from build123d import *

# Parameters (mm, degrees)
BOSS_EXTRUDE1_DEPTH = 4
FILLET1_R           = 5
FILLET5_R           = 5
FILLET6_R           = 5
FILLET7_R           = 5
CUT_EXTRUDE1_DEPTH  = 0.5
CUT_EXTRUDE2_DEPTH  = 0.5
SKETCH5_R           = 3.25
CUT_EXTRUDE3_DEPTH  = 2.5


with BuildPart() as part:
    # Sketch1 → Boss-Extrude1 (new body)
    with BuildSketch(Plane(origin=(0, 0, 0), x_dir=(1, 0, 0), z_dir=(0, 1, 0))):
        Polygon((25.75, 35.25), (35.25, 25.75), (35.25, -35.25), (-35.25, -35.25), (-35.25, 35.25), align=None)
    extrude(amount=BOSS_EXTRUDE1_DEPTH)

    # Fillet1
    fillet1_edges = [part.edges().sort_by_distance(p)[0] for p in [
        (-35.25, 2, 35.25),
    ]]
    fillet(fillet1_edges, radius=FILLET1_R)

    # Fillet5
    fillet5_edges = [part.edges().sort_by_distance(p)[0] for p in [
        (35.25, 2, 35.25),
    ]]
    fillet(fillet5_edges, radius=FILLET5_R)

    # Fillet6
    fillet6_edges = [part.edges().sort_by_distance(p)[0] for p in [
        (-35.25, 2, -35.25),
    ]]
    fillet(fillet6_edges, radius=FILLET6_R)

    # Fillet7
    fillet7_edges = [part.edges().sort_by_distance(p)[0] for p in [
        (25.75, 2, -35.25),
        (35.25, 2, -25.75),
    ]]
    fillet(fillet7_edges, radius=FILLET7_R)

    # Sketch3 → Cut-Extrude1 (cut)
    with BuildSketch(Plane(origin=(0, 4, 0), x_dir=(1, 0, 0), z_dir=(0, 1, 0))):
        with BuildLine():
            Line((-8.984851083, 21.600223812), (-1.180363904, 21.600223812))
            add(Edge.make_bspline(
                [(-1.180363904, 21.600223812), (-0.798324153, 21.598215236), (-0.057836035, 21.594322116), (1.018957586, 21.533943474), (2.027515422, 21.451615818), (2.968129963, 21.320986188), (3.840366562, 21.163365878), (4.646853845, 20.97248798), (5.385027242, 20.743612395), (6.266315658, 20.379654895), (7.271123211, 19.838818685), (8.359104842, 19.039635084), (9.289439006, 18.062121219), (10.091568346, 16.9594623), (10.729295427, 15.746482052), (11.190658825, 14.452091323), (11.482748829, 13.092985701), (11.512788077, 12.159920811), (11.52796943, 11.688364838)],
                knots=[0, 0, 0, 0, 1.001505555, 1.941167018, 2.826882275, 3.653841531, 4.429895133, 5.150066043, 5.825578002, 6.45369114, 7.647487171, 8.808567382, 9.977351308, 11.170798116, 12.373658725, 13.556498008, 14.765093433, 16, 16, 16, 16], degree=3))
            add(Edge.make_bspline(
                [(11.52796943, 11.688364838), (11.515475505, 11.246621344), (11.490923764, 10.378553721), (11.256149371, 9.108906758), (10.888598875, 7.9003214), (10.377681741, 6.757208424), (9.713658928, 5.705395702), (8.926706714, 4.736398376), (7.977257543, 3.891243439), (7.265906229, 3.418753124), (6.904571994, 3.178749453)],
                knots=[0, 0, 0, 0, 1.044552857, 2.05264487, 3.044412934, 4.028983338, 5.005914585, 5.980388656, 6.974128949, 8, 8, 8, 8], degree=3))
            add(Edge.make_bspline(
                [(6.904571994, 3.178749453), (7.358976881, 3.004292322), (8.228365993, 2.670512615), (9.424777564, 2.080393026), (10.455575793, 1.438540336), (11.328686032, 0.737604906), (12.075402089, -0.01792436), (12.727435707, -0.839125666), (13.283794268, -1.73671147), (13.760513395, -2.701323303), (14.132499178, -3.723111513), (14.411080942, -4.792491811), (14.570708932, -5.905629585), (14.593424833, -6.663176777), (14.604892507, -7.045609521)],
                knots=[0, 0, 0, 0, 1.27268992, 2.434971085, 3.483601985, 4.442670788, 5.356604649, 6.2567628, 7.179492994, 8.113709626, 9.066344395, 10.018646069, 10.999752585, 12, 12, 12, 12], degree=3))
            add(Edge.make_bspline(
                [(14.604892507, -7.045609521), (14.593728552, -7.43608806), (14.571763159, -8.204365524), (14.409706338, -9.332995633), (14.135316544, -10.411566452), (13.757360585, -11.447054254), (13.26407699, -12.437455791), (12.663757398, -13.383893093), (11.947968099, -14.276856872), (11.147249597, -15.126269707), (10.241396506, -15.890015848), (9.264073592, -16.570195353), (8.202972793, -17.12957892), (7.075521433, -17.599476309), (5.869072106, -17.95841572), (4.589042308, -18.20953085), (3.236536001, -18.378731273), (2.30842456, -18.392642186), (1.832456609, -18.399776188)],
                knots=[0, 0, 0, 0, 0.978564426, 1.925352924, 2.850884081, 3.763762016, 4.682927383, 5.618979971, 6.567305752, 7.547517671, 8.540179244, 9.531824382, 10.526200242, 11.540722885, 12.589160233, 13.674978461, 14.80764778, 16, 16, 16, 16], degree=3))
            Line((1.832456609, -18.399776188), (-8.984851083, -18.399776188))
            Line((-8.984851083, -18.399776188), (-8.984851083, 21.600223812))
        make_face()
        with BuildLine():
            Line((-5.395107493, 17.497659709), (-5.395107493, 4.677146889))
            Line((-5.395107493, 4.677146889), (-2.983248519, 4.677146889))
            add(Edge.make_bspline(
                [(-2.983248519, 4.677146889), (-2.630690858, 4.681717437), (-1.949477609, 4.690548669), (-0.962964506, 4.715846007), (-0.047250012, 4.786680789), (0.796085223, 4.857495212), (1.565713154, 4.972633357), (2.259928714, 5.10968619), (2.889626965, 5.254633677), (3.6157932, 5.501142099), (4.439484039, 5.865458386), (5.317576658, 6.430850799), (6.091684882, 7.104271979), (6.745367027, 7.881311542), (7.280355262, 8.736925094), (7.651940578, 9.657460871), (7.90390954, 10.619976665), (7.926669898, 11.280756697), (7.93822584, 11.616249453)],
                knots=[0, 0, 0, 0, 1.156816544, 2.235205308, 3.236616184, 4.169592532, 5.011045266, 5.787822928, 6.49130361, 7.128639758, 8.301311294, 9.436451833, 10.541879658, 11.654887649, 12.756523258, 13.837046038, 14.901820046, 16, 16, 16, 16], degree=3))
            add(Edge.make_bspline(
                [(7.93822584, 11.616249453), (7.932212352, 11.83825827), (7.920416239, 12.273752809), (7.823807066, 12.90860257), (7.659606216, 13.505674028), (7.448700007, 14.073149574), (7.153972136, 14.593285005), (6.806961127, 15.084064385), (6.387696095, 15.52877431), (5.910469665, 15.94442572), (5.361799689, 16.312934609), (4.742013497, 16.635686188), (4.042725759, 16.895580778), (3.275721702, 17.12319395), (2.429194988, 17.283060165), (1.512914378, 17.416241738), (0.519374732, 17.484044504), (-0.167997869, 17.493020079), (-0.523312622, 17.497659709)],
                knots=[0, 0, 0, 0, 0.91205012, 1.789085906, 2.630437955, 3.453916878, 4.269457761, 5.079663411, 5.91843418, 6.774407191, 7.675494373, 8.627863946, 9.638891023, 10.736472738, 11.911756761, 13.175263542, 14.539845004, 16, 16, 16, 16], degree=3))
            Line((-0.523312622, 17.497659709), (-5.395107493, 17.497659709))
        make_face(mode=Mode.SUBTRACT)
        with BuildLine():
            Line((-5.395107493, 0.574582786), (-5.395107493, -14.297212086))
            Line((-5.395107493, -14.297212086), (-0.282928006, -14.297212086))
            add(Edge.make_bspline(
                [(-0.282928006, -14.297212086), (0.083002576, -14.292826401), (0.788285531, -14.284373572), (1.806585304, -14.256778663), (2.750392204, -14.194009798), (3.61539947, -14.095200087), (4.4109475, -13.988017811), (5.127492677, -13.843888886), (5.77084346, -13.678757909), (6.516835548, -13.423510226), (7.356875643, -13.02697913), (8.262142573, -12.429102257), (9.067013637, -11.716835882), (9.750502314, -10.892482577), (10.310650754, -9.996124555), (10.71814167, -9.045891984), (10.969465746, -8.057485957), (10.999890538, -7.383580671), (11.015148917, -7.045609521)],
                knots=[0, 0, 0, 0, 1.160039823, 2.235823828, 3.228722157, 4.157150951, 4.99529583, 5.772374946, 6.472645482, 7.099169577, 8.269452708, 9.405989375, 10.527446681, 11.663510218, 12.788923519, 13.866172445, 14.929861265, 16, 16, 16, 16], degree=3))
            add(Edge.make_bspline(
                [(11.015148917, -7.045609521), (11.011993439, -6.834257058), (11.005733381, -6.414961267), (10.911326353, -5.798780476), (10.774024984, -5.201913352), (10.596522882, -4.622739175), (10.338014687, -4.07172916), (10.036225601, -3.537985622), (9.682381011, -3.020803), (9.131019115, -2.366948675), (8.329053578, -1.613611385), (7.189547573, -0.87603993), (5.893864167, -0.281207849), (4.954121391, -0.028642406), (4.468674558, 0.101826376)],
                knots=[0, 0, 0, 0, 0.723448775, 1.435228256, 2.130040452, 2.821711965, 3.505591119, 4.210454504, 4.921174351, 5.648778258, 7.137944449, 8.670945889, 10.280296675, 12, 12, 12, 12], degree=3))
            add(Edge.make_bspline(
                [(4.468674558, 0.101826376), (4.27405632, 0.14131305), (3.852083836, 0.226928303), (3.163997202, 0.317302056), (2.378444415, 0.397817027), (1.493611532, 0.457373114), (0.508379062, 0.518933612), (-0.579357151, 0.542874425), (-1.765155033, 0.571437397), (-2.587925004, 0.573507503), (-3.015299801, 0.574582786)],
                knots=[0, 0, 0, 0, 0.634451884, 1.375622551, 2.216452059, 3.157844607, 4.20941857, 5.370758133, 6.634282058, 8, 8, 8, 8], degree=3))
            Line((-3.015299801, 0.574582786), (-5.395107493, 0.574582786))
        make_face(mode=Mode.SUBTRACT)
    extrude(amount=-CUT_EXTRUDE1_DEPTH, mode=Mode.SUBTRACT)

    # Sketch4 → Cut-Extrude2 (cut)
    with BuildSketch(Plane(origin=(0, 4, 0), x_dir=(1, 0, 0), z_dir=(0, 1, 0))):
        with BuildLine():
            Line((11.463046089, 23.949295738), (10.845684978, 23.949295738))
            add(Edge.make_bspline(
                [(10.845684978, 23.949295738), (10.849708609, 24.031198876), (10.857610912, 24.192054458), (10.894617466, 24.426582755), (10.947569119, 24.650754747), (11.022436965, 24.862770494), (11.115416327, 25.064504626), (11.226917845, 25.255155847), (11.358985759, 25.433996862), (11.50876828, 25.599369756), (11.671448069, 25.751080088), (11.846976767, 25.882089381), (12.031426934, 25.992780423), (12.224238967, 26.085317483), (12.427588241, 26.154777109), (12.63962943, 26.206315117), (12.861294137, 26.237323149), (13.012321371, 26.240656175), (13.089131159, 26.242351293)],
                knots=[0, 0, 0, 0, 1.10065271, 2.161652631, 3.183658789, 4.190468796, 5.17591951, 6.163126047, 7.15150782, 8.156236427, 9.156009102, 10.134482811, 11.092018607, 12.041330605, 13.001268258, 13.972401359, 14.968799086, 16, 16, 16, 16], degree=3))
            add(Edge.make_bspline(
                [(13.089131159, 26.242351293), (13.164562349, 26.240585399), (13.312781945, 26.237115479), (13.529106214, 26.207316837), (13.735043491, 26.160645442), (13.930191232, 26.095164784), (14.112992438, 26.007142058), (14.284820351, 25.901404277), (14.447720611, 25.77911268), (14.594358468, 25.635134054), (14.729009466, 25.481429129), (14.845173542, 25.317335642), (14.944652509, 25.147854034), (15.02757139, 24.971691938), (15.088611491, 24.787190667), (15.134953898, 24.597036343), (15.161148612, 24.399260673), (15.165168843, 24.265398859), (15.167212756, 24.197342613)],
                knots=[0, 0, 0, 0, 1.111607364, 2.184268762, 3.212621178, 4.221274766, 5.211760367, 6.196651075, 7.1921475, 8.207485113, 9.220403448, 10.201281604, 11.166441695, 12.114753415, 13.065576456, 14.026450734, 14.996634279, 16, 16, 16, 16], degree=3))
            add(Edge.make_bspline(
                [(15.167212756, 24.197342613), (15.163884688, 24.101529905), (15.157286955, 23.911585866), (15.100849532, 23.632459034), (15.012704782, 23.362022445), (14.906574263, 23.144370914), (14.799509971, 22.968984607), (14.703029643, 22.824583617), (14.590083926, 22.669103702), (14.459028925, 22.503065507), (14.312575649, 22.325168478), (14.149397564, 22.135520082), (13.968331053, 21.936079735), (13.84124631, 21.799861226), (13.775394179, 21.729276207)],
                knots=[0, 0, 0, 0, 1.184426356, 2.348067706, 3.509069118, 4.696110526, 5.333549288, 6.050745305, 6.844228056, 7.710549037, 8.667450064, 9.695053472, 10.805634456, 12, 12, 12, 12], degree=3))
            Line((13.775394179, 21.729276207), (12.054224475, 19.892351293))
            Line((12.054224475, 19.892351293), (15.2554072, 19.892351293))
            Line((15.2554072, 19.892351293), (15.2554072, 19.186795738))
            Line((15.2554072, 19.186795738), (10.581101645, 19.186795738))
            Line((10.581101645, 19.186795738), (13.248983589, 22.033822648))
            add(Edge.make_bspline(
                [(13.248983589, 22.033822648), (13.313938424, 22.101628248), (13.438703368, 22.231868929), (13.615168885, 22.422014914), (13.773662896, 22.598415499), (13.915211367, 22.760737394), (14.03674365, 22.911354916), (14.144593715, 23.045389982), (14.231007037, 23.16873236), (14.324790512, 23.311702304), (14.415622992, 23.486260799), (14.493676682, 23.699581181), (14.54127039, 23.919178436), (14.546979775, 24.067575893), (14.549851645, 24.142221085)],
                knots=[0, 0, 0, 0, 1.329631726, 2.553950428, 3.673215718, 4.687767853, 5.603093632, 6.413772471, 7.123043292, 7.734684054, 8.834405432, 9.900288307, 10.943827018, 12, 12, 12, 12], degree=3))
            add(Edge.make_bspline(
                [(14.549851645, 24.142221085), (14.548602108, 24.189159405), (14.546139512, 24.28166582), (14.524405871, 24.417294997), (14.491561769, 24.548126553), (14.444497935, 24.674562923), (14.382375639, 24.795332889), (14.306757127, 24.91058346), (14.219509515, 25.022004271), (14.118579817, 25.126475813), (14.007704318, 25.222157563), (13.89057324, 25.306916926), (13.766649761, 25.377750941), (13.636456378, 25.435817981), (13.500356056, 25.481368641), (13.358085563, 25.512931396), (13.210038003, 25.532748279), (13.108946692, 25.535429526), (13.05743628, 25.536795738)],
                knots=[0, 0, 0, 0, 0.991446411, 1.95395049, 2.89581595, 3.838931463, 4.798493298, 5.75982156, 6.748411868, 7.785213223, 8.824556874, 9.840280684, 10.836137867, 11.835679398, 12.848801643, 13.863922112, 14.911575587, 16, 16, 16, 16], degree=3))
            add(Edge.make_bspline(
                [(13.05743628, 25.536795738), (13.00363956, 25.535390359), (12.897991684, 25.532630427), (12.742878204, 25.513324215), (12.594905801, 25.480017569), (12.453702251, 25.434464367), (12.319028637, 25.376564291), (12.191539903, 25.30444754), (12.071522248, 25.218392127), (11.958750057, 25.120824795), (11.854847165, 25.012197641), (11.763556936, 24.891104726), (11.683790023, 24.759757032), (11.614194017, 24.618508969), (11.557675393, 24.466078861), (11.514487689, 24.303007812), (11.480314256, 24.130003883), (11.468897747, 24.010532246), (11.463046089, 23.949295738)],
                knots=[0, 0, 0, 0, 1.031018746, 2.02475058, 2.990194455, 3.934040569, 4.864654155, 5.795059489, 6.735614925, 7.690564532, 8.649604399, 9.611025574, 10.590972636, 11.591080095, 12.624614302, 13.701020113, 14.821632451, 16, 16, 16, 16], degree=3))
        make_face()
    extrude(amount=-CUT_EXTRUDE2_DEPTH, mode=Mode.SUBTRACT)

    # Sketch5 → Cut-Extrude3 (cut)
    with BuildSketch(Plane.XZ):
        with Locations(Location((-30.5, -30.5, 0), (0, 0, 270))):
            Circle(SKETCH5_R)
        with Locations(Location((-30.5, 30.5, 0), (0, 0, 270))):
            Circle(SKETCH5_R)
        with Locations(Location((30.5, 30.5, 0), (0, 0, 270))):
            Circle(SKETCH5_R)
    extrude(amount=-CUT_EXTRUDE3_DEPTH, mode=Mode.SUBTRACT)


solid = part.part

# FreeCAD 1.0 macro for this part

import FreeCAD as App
import Part
import Sketcher
from FreeCAD import Vector


def edges_at(feature, points):
    """Names of the edges that pass closest to the given points."""
    edges = feature.Shape.Edges
    near = lambda p: min(range(len(edges)), key=lambda i: edges[i].distToShape(Part.Vertex(*p))[0])
    return sorted({f"Edge{near(p) + 1}" for p in points})


def add_polygon(sketch, points):
    """Adds a closed chain of lines whose ends are joined by coincident constraints."""
    first, n = sketch.GeometryCount, len(points)
    for a, b in zip(points, points[1:] + points[:1]):
        sketch.addGeometry(Part.LineSegment(App.Vector(*a, 0), App.Vector(*b, 0)), False)
    for i in range(n):
        sketch.addConstraint(Sketcher.Constraint("Coincident", first + i, 2, first + (i + 1) % n, 1))

doc = App.newDocument("Part")
body = doc.addObject("PartDesign::Body", "Body")

# Sketch on XZ plane
sketch1 = body.newObject("Sketcher::SketchObject", "Sketch")
sketch1.AttachmentSupport = (doc.getObject("XZ_Plane"), [""])
sketch1.MapMode = "FlatFace"
add_polygon(sketch1, [(35.25, -25.75), (25.75, -35.25), (-35.25, -35.25), (-35.25, 35.25), (35.25, 35.25)])  # lines 0-4
sketch1.addConstraint([
    Sketcher.Constraint("Horizontal", 1),
    Sketcher.Constraint("Vertical", 2),
    Sketcher.Constraint("Horizontal", 3),
    Sketcher.Constraint("Vertical", 4),
    Sketcher.Constraint("Symmetric", 1, 2, 3, 2, -1, 1),
    Sketcher.Constraint("Equal", 3, 2),
    Sketcher.Constraint("Equal", 1, 4),
    Sketcher.Constraint("DistanceX", 1, 2, 1, 1, 61.0),
    Sketcher.Constraint("DistanceX", 3, 1, 3, 2, 70.5),
])
pad1 = body.newObject("PartDesign::Pad", "Pad")
pad1.Profile = sketch1
pad1.Length = 4
pad1.Reversed = True
doc.recompute()

fillet = body.newObject("PartDesign::Fillet", "Fillet")
fillet.Base = (pad1, edges_at(pad1, [(-35.25, 2, 35.25)]))
fillet.Radius = 5
doc.recompute()

fillet2 = body.newObject("PartDesign::Fillet", "Fillet001")
fillet2.Base = (fillet, edges_at(fillet, [(35.25, 2, 35.25)]))
fillet2.Radius = 5
doc.recompute()

fillet3 = body.newObject("PartDesign::Fillet", "Fillet002")
fillet3.Base = (fillet2, edges_at(fillet2, [(-35.25, 2, -35.25)]))
fillet3.Radius = 5
doc.recompute()

fillet4 = body.newObject("PartDesign::Fillet", "Fillet003")
fillet4.Base = (fillet3, edges_at(fillet3, [(25.75, 2, -35.25), (35.25, 2, -25.75)]))
fillet4.Radius = 5

# Sketch on XZ plane
sketch2 = body.newObject("Sketcher::SketchObject", "Sketch001")
sketch2.AttachmentSupport = (doc.getObject("XZ_Plane"), [""])
sketch2.MapMode = "FlatFace"
sketch2.AttachmentOffset = App.Placement(Vector(0, 0, -4), App.Rotation())
sketch2.addGeometry([
    Part.LineSegment(Vector(-1.180364, -21.600224, 0), Vector(-8.984851, -21.600224, 0)),  # 0
    Part.LineSegment(Vector(-8.984851, -21.600224, 0), Vector(-8.984851, 18.399776, 0)),  # 1
    Part.LineSegment(Vector(-8.984851, 18.399776, 0), Vector(1.832457, 18.399776, 0)),  # 2
    Part.BSplineCurve([Vector(14.604893, 7.04561, 0), Vector(14.593729, 7.436088, 0), Vector(14.571763, 8.204366, 0), Vector(14.409706, 9.332996, 0), Vector(14.135317, 10.411566, 0), Vector(13.757361, 11.447054, 0), Vector(13.264077, 12.437456, 0), Vector(12.663757, 13.383893, 0), Vector(11.947968, 14.276857, 0), Vector(11.14725, 15.12627, 0), Vector(10.241397, 15.890016, 0), Vector(9.264074, 16.570195, 0), Vector(8.202973, 17.129579, 0), Vector(7.075521, 17.599476, 0), Vector(5.869072, 17.958416, 0), Vector(4.589042, 18.209531, 0), Vector(3.236536, 18.378731, 0), Vector(2.308425, 18.392642, 0), Vector(1.832457, 18.399776, 0)], [4, 1, 1, 1, 1, 1, 1, 1, 1, 1, 1, 1, 1, 1, 1, 1, 4], [0, 0.978564426, 1.925352924, 2.850884081, 3.763762016, 4.682927383, 5.618979971, 6.567305752, 7.547517671, 8.540179244, 9.531824382, 10.526200242, 11.540722885, 12.589160233, 13.674978461, 14.80764778, 16], False, 3, [1, 1, 1, 1, 1, 1, 1, 1, 1, 1, 1, 1, 1, 1, 1, 1, 1, 1, 1], False),  # 3
    Part.BSplineCurve([Vector(6.904572, -3.178749, 0), Vector(7.358977, -3.004292, 0), Vector(8.228366, -2.670513, 0), Vector(9.424778, -2.080393, 0), Vector(10.455576, -1.43854, 0), Vector(11.328686, -0.737605, 0), Vector(12.075402, 0.017924, 0), Vector(12.727436, 0.839126, 0), Vector(13.283794, 1.736711, 0), Vector(13.760513, 2.701323, 0), Vector(14.132499, 3.723112, 0), Vector(14.411081, 4.792492, 0), Vector(14.570709, 5.90563, 0), Vector(14.593425, 6.663177, 0), Vector(14.604893, 7.04561, 0)], [4, 1, 1, 1, 1, 1, 1, 1, 1, 1, 1, 1, 4], [0, 1.27268992, 2.434971085, 3.483601985, 4.442670788, 5.356604649, 6.2567628, 7.179492994, 8.113709626, 9.066344395, 10.018646069, 10.999752585, 12], False, 3, [1, 1, 1, 1, 1, 1, 1, 1, 1, 1, 1, 1, 1, 1, 1], False),  # 4
    Part.BSplineCurve([Vector(11.527969, -11.688365, 0), Vector(11.515476, -11.246621, 0), Vector(11.490924, -10.378554, 0), Vector(11.256149, -9.108907, 0), Vector(10.888599, -7.900321, 0), Vector(10.377682, -6.757208, 0), Vector(9.713659, -5.705396, 0), Vector(8.926707, -4.736398, 0), Vector(7.977258, -3.891243, 0), Vector(7.265906, -3.418753, 0), Vector(6.904572, -3.178749, 0)], [4, 1, 1, 1, 1, 1, 1, 1, 4], [0, 1.044552857, 2.05264487, 3.044412934, 4.028983338, 5.005914585, 5.980388656, 6.974128949, 8], False, 3, [1, 1, 1, 1, 1, 1, 1, 1, 1, 1, 1], False),  # 5
    Part.BSplineCurve([Vector(-1.180364, -21.600224, 0), Vector(-0.798324, -21.598215, 0), Vector(-0.057836, -21.594322, 0), Vector(1.018958, -21.533943, 0), Vector(2.027515, -21.451616, 0), Vector(2.96813, -21.320986, 0), Vector(3.840367, -21.163366, 0), Vector(4.646854, -20.972488, 0), Vector(5.385027, -20.743612, 0), Vector(6.266316, -20.379655, 0), Vector(7.271123, -19.838819, 0), Vector(8.359105, -19.039635, 0), Vector(9.289439, -18.062121, 0), Vector(10.091568, -16.959462, 0), Vector(10.729295, -15.746482, 0), Vector(11.190659, -14.452091, 0), Vector(11.482749, -13.092986, 0), Vector(11.512788, -12.159921, 0), Vector(11.527969, -11.688365, 0)], [4, 1, 1, 1, 1, 1, 1, 1, 1, 1, 1, 1, 1, 1, 1, 1, 4], [0, 1.001505555, 1.941167018, 2.826882275, 3.653841531, 4.429895133, 5.150066043, 5.825578002, 6.45369114, 7.647487171, 8.808567382, 9.977351308, 11.170798116, 12.373658725, 13.556498008, 14.765093433, 16], False, 3, [1, 1, 1, 1, 1, 1, 1, 1, 1, 1, 1, 1, 1, 1, 1, 1, 1, 1, 1], False),  # 6
    Part.LineSegment(Vector(-5.395107, -0.574583, 0), Vector(-3.0153, -0.574583, 0)),  # 7
    Part.BSplineCurve([Vector(4.468675, -0.101826, 0), Vector(4.274056, -0.141313, 0), Vector(3.852084, -0.226928, 0), Vector(3.163997, -0.317302, 0), Vector(2.378444, -0.397817, 0), Vector(1.493612, -0.457373, 0), Vector(0.508379, -0.518934, 0), Vector(-0.579357, -0.542874, 0), Vector(-1.765155, -0.571437, 0), Vector(-2.587925, -0.573508, 0), Vector(-3.0153, -0.574583, 0)], [4, 1, 1, 1, 1, 1, 1, 1, 4], [0, 0.634451884, 1.375622551, 2.216452059, 3.157844607, 4.20941857, 5.370758133, 6.634282058, 8], False, 3, [1, 1, 1, 1, 1, 1, 1, 1, 1, 1, 1], False),  # 8
    Part.BSplineCurve([Vector(11.015149, 7.04561, 0), Vector(11.011993, 6.834257, 0), Vector(11.005733, 6.414961, 0), Vector(10.911326, 5.79878, 0), Vector(10.774025, 5.201913, 0), Vector(10.596523, 4.622739, 0), Vector(10.338015, 4.071729, 0), Vector(10.036226, 3.537986, 0), Vector(9.682381, 3.020803, 0), Vector(9.131019, 2.366949, 0), Vector(8.329054, 1.613611, 0), Vector(7.189548, 0.87604, 0), Vector(5.893864, 0.281208, 0), Vector(4.954121, 0.028642, 0), Vector(4.468675, -0.101826, 0)], [4, 1, 1, 1, 1, 1, 1, 1, 1, 1, 1, 1, 4], [0, 0.723448775, 1.435228256, 2.130040452, 2.821711965, 3.505591119, 4.210454504, 4.921174351, 5.648778258, 7.137944449, 8.670945889, 10.280296675, 12], False, 3, [1, 1, 1, 1, 1, 1, 1, 1, 1, 1, 1, 1, 1, 1, 1], False),  # 9
    Part.BSplineCurve([Vector(-0.282928, 14.297212, 0), Vector(0.083003, 14.292826, 0), Vector(0.788286, 14.284374, 0), Vector(1.806585, 14.256779, 0), Vector(2.750392, 14.19401, 0), Vector(3.615399, 14.0952, 0), Vector(4.410947, 13.988018, 0), Vector(5.127493, 13.843889, 0), Vector(5.770843, 13.678758, 0), Vector(6.516836, 13.42351, 0), Vector(7.356876, 13.026979, 0), Vector(8.262143, 12.429102, 0), Vector(9.067014, 11.716836, 0), Vector(9.750502, 10.892483, 0), Vector(10.310651, 9.996125, 0), Vector(10.718142, 9.045892, 0), Vector(10.969466, 8.057486, 0), Vector(10.999891, 7.383581, 0), Vector(11.015149, 7.04561, 0)], [4, 1, 1, 1, 1, 1, 1, 1, 1, 1, 1, 1, 1, 1, 1, 1, 4], [0, 1.160039823, 2.235823828, 3.228722157, 4.157150951, 4.99529583, 5.772374946, 6.472645482, 7.099169577, 8.269452708, 9.405989375, 10.527446681, 11.663510218, 12.788923519, 13.866172445, 14.929861265, 16], False, 3, [1, 1, 1, 1, 1, 1, 1, 1, 1, 1, 1, 1, 1, 1, 1, 1, 1, 1, 1], False),  # 10
    Part.LineSegment(Vector(-0.282928, 14.297212, 0), Vector(-5.395107, 14.297212, 0)),  # 11
    Part.LineSegment(Vector(-5.395107, 14.297212, 0), Vector(-5.395107, -0.574583, 0)),  # 12
    Part.LineSegment(Vector(-5.395107, -17.49766, 0), Vector(-0.523313, -17.49766, 0)),  # 13
    Part.BSplineCurve([Vector(7.938226, -11.616249, 0), Vector(7.932212, -11.838258, 0), Vector(7.920416, -12.273753, 0), Vector(7.823807, -12.908603, 0), Vector(7.659606, -13.505674, 0), Vector(7.4487, -14.07315, 0), Vector(7.153972, -14.593285, 0), Vector(6.806961, -15.084064, 0), Vector(6.387696, -15.528774, 0), Vector(5.91047, -15.944426, 0), Vector(5.3618, -16.312935, 0), Vector(4.742013, -16.635686, 0), Vector(4.042726, -16.895581, 0), Vector(3.275722, -17.123194, 0), Vector(2.429195, -17.28306, 0), Vector(1.512914, -17.416242, 0), Vector(0.519375, -17.484045, 0), Vector(-0.167998, -17.49302, 0), Vector(-0.523313, -17.49766, 0)], [4, 1, 1, 1, 1, 1, 1, 1, 1, 1, 1, 1, 1, 1, 1, 1, 4], [0, 0.91205012, 1.789085906, 2.630437955, 3.453916878, 4.269457761, 5.079663411, 5.91843418, 6.774407191, 7.675494373, 8.627863946, 9.638891023, 10.736472738, 11.911756761, 13.175263542, 14.539845004, 16], False, 3, [1, 1, 1, 1, 1, 1, 1, 1, 1, 1, 1, 1, 1, 1, 1, 1, 1, 1, 1], False),  # 14
    Part.BSplineCurve([Vector(-2.983249, -4.677147, 0), Vector(-2.630691, -4.681717, 0), Vector(-1.949478, -4.690549, 0), Vector(-0.962965, -4.715846, 0), Vector(-0.04725, -4.786681, 0), Vector(0.796085, -4.857495, 0), Vector(1.565713, -4.972633, 0), Vector(2.259929, -5.109686, 0), Vector(2.889627, -5.254634, 0), Vector(3.615793, -5.501142, 0), Vector(4.439484, -5.865458, 0), Vector(5.317577, -6.430851, 0), Vector(6.091685, -7.104272, 0), Vector(6.745367, -7.881312, 0), Vector(7.280355, -8.736925, 0), Vector(7.651941, -9.657461, 0), Vector(7.90391, -10.619977, 0), Vector(7.92667, -11.280757, 0), Vector(7.938226, -11.616249, 0)], [4, 1, 1, 1, 1, 1, 1, 1, 1, 1, 1, 1, 1, 1, 1, 1, 4], [0, 1.156816544, 2.235205308, 3.236616184, 4.169592532, 5.011045266, 5.787822928, 6.49130361, 7.128639758, 8.301311294, 9.436451833, 10.541879658, 11.654887649, 12.756523258, 13.837046038, 14.901820046, 16], False, 3, [1, 1, 1, 1, 1, 1, 1, 1, 1, 1, 1, 1, 1, 1, 1, 1, 1, 1, 1], False),  # 15
    Part.LineSegment(Vector(-2.983249, -4.677147, 0), Vector(-5.395107, -4.677147, 0)),  # 16
    Part.LineSegment(Vector(-5.395107, -4.677147, 0), Vector(-5.395107, -17.49766, 0)),  # 17
], False)
sketch2.addConstraint([
    Sketcher.Constraint("Block", 3),
    Sketcher.Constraint("Block", 4),
    Sketcher.Constraint("Block", 5),
    Sketcher.Constraint("Block", 6),
    Sketcher.Constraint("Block", 8),
    Sketcher.Constraint("Block", 9),
    Sketcher.Constraint("Block", 10),
    Sketcher.Constraint("Block", 14),
    Sketcher.Constraint("Block", 15),
    Sketcher.Constraint("Coincident", 0, 2, 1, 1),
    Sketcher.Constraint("Coincident", 1, 2, 2, 1),
    Sketcher.Constraint("Coincident", 2, 2, 3, 2),
    Sketcher.Constraint("Coincident", 6, 1, 0, 1),
    Sketcher.Constraint("Coincident", 7, 2, 8, 2),
    Sketcher.Constraint("Coincident", 10, 1, 11, 1),
    Sketcher.Constraint("Coincident", 11, 2, 12, 1),
    Sketcher.Constraint("Coincident", 12, 2, 7, 1),
    Sketcher.Constraint("Coincident", 13, 2, 14, 2),
    Sketcher.Constraint("Coincident", 15, 1, 16, 1),
    Sketcher.Constraint("Coincident", 16, 2, 17, 1),
    Sketcher.Constraint("Coincident", 17, 2, 13, 1),
    Sketcher.Constraint("Horizontal", 0),
    Sketcher.Constraint("Vertical", 1),
    Sketcher.Constraint("Horizontal", 2),
    Sketcher.Constraint("Horizontal", 7),
    Sketcher.Constraint("Horizontal", 11),
    Sketcher.Constraint("Vertical", 12),
    Sketcher.Constraint("Horizontal", 13),
    Sketcher.Constraint("Horizontal", 16),
    Sketcher.Constraint("Vertical", 17),
    Sketcher.Constraint("Vertical", 12, 2, 16, 2),
    Sketcher.Constraint("DistanceX", 11, 2, 11, 1, 5.112179),
    Sketcher.Constraint("DistanceX", 0, 2, 0, 1, 7.804487),
])
pocket1 = body.newObject("PartDesign::Pocket", "Pocket")
pocket1.Profile = sketch2
pocket1.Length = 0.5
pocket1.Reversed = True

# Sketch on XZ plane
sketch3 = body.newObject("Sketcher::SketchObject", "Sketch002")
sketch3.AttachmentSupport = (doc.getObject("XZ_Plane"), [""])
sketch3.MapMode = "FlatFace"
sketch3.AttachmentOffset = App.Placement(Vector(0, 0, -4), App.Rotation())
sketch3.addGeometry([
    Part.LineSegment(Vector(10.845685, -23.949296, 0), Vector(11.463046, -23.949296, 0)),  # 0
    Part.BSplineCurve([Vector(13.057436, -25.536796, 0), Vector(13.00364, -25.53539, 0), Vector(12.897992, -25.53263, 0), Vector(12.742878, -25.513324, 0), Vector(12.594906, -25.480018, 0), Vector(12.453702, -25.434464, 0), Vector(12.319029, -25.376564, 0), Vector(12.19154, -25.304448, 0), Vector(12.071522, -25.218392, 0), Vector(11.95875, -25.120825, 0), Vector(11.854847, -25.012198, 0), Vector(11.763557, -24.891105, 0), Vector(11.68379, -24.759757, 0), Vector(11.614194, -24.618509, 0), Vector(11.557675, -24.466079, 0), Vector(11.514488, -24.303008, 0), Vector(11.480314, -24.130004, 0), Vector(11.468898, -24.010532, 0), Vector(11.463046, -23.949296, 0)], [4, 1, 1, 1, 1, 1, 1, 1, 1, 1, 1, 1, 1, 1, 1, 1, 4], [0, 1.031018746, 2.02475058, 2.990194455, 3.934040569, 4.864654155, 5.795059489, 6.735614925, 7.690564532, 8.649604399, 9.611025574, 10.590972636, 11.591080095, 12.624614302, 13.701020113, 14.821632451, 16], False, 3, [1, 1, 1, 1, 1, 1, 1, 1, 1, 1, 1, 1, 1, 1, 1, 1, 1, 1, 1], False),  # 1
    Part.BSplineCurve([Vector(14.549852, -24.142221, 0), Vector(14.548602, -24.189159, 0), Vector(14.54614, -24.281666, 0), Vector(14.524406, -24.417295, 0), Vector(14.491562, -24.548127, 0), Vector(14.444498, -24.674563, 0), Vector(14.382376, -24.795333, 0), Vector(14.306757, -24.910583, 0), Vector(14.21951, -25.022004, 0), Vector(14.11858, -25.126476, 0), Vector(14.007704, -25.222158, 0), Vector(13.890573, -25.306917, 0), Vector(13.76665, -25.377751, 0), Vector(13.636456, -25.435818, 0), Vector(13.500356, -25.481369, 0), Vector(13.358086, -25.512931, 0), Vector(13.210038, -25.532748, 0), Vector(13.108947, -25.53543, 0), Vector(13.057436, -25.536796, 0)], [4, 1, 1, 1, 1, 1, 1, 1, 1, 1, 1, 1, 1, 1, 1, 1, 4], [0, 0.991446411, 1.95395049, 2.89581595, 3.838931463, 4.798493298, 5.75982156, 6.748411868, 7.785213223, 8.824556874, 9.840280684, 10.836137867, 11.835679398, 12.848801643, 13.863922112, 14.911575587, 16], False, 3, [1, 1, 1, 1, 1, 1, 1, 1, 1, 1, 1, 1, 1, 1, 1, 1, 1, 1, 1], False),  # 2
    Part.BSplineCurve([Vector(13.248984, -22.033823, 0), Vector(13.313938, -22.101628, 0), Vector(13.438703, -22.231869, 0), Vector(13.615169, -22.422015, 0), Vector(13.773663, -22.598415, 0), Vector(13.915211, -22.760737, 0), Vector(14.036744, -22.911355, 0), Vector(14.144594, -23.04539, 0), Vector(14.231007, -23.168732, 0), Vector(14.324791, -23.311702, 0), Vector(14.415623, -23.486261, 0), Vector(14.493677, -23.699581, 0), Vector(14.54127, -23.919178, 0), Vector(14.54698, -24.067576, 0), Vector(14.549852, -24.142221, 0)], [4, 1, 1, 1, 1, 1, 1, 1, 1, 1, 1, 1, 4], [0, 1.329631726, 2.553950428, 3.673215718, 4.687767853, 5.603093632, 6.413772471, 7.123043292, 7.734684054, 8.834405432, 9.900288307, 10.943827018, 12], False, 3, [1, 1, 1, 1, 1, 1, 1, 1, 1, 1, 1, 1, 1, 1, 1], False),  # 3
    Part.LineSegment(Vector(13.248984, -22.033823, 0), Vector(10.581102, -19.186796, 0)),  # 4
    Part.LineSegment(Vector(10.581102, -19.186796, 0), Vector(15.255407, -19.186796, 0)),  # 5
    Part.LineSegment(Vector(15.255407, -19.186796, 0), Vector(15.255407, -19.892351, 0)),  # 6
    Part.LineSegment(Vector(15.255407, -19.892351, 0), Vector(12.054224, -19.892351, 0)),  # 7
    Part.LineSegment(Vector(12.054224, -19.892351, 0), Vector(13.775394, -21.729276, 0)),  # 8
    Part.BSplineCurve([Vector(15.167213, -24.197343, 0), Vector(15.163885, -24.10153, 0), Vector(15.157287, -23.911586, 0), Vector(15.10085, -23.632459, 0), Vector(15.012705, -23.362022, 0), Vector(14.906574, -23.144371, 0), Vector(14.79951, -22.968985, 0), Vector(14.70303, -22.824584, 0), Vector(14.590084, -22.669104, 0), Vector(14.459029, -22.503066, 0), Vector(14.312576, -22.325168, 0), Vector(14.149398, -22.13552, 0), Vector(13.968331, -21.93608, 0), Vector(13.841246, -21.799861, 0), Vector(13.775394, -21.729276, 0)], [4, 1, 1, 1, 1, 1, 1, 1, 1, 1, 1, 1, 4], [0, 1.184426356, 2.348067706, 3.509069118, 4.696110526, 5.333549288, 6.050745305, 6.844228056, 7.710549037, 8.667450064, 9.695053472, 10.805634456, 12], False, 3, [1, 1, 1, 1, 1, 1, 1, 1, 1, 1, 1, 1, 1, 1, 1], False),  # 9
    Part.BSplineCurve([Vector(13.089131, -26.242351, 0), Vector(13.164562, -26.240585, 0), Vector(13.312782, -26.237115, 0), Vector(13.529106, -26.207317, 0), Vector(13.735043, -26.160645, 0), Vector(13.930191, -26.095165, 0), Vector(14.112992, -26.007142, 0), Vector(14.28482, -25.901404, 0), Vector(14.447721, -25.779113, 0), Vector(14.594358, -25.635134, 0), Vector(14.729009, -25.481429, 0), Vector(14.845174, -25.317336, 0), Vector(14.944653, -25.147854, 0), Vector(15.027571, -24.971692, 0), Vector(15.088611, -24.787191, 0), Vector(15.134954, -24.597036, 0), Vector(15.161149, -24.399261, 0), Vector(15.165169, -24.265399, 0), Vector(15.167213, -24.197343, 0)], [4, 1, 1, 1, 1, 1, 1, 1, 1, 1, 1, 1, 1, 1, 1, 1, 4], [0, 1.111607364, 2.184268762, 3.212621178, 4.221274766, 5.211760367, 6.196651075, 7.1921475, 8.207485113, 9.220403448, 10.201281604, 11.166441695, 12.114753415, 13.065576456, 14.026450734, 14.996634279, 16], False, 3, [1, 1, 1, 1, 1, 1, 1, 1, 1, 1, 1, 1, 1, 1, 1, 1, 1, 1, 1], False),  # 10
    Part.BSplineCurve([Vector(10.845685, -23.949296, 0), Vector(10.849709, -24.031199, 0), Vector(10.857611, -24.192054, 0), Vector(10.894617, -24.426583, 0), Vector(10.947569, -24.650755, 0), Vector(11.022437, -24.86277, 0), Vector(11.115416, -25.064505, 0), Vector(11.226918, -25.255156, 0), Vector(11.358986, -25.433997, 0), Vector(11.508768, -25.59937, 0), Vector(11.671448, -25.75108, 0), Vector(11.846977, -25.882089, 0), Vector(12.031427, -25.99278, 0), Vector(12.224239, -26.085317, 0), Vector(12.427588, -26.154777, 0), Vector(12.639629, -26.206315, 0), Vector(12.861294, -26.237323, 0), Vector(13.012321, -26.240656, 0), Vector(13.089131, -26.242351, 0)], [4, 1, 1, 1, 1, 1, 1, 1, 1, 1, 1, 1, 1, 1, 1, 1, 4], [0, 1.10065271, 2.161652631, 3.183658789, 4.190468796, 5.17591951, 6.163126047, 7.15150782, 8.156236427, 9.156009102, 10.134482811, 11.092018607, 12.041330605, 13.001268258, 13.972401359, 14.968799086, 16], False, 3, [1, 1, 1, 1, 1, 1, 1, 1, 1, 1, 1, 1, 1, 1, 1, 1, 1, 1, 1], False),  # 11
], False)
sketch3.addConstraint([
    Sketcher.Constraint("Block", 1),
    Sketcher.Constraint("Block", 2),
    Sketcher.Constraint("Block", 3),
    Sketcher.Constraint("Block", 9),
    Sketcher.Constraint("Block", 10),
    Sketcher.Constraint("Block", 11),
    Sketcher.Constraint("Coincident", 0, 2, 1, 2),
    Sketcher.Constraint("Coincident", 3, 1, 4, 1),
    Sketcher.Constraint("Coincident", 4, 2, 5, 1),
    Sketcher.Constraint("Coincident", 5, 2, 6, 1),
    Sketcher.Constraint("Coincident", 6, 2, 7, 1),
    Sketcher.Constraint("Coincident", 7, 2, 8, 1),
    Sketcher.Constraint("Coincident", 8, 2, 9, 2),
    Sketcher.Constraint("Coincident", 11, 1, 0, 1),
    Sketcher.Constraint("Horizontal", 5),
    Sketcher.Constraint("Vertical", 6),
    Sketcher.Constraint("Horizontal", 7),
    Sketcher.Constraint("DistanceX", -1, 1, 4, 2, 10.581102),
    Sketcher.Constraint("DistanceY", 0, 2, 4, 2, 4.7625),
    Sketcher.Constraint("DistanceX", 5, 1, 5, 2, 4.674306),
    Sketcher.Constraint("DistanceX", 7, 2, 7, 1, 3.201183),
    Sketcher.Constraint("DistanceY", 6, 2, 6, 1, 0.705556),
])
pocket2 = body.newObject("PartDesign::Pocket", "Pocket001")
pocket2.Profile = sketch3
pocket2.Length = 0.5
pocket2.Reversed = True

# Sketch on XZ plane
sketch4 = body.newObject("Sketcher::SketchObject", "Sketch003")
sketch4.AttachmentSupport = (doc.getObject("XZ_Plane"), [""])
sketch4.MapMode = "FlatFace"
sketch4.addGeometry([
    Part.Circle(Vector(-30.5, -30.5, 0), Vector(0, 0, 1), 3.25),
    Part.Circle(Vector(-30.5, 30.5, 0), Vector(0, 0, 1), 3.25),
    Part.Circle(Vector(30.5, 30.5, 0), Vector(0, 0, 1), 3.25),
], False)
sketch4.addConstraint([
    Sketcher.Constraint("Equal", 0, 1),
    Sketcher.Constraint("Equal", 1, 2),
    Sketcher.Constraint("Symmetric", 0, 3, 2, 3, -1, 1),
    Sketcher.Constraint("Symmetric", 1, 3, 2, 3, -2),
    Sketcher.Constraint("Diameter", 0, 6.5),
    Sketcher.Constraint("DistanceY", 0, 3, 1, 3, 61.0),
    Sketcher.Constraint("DistanceX", 1, 3, 2, 3, 61.0),
])
pocket3 = body.newObject("PartDesign::Pocket", "Pocket002")
pocket3.Profile = sketch4
pocket3.Length = 2.5

doc.recompute()
